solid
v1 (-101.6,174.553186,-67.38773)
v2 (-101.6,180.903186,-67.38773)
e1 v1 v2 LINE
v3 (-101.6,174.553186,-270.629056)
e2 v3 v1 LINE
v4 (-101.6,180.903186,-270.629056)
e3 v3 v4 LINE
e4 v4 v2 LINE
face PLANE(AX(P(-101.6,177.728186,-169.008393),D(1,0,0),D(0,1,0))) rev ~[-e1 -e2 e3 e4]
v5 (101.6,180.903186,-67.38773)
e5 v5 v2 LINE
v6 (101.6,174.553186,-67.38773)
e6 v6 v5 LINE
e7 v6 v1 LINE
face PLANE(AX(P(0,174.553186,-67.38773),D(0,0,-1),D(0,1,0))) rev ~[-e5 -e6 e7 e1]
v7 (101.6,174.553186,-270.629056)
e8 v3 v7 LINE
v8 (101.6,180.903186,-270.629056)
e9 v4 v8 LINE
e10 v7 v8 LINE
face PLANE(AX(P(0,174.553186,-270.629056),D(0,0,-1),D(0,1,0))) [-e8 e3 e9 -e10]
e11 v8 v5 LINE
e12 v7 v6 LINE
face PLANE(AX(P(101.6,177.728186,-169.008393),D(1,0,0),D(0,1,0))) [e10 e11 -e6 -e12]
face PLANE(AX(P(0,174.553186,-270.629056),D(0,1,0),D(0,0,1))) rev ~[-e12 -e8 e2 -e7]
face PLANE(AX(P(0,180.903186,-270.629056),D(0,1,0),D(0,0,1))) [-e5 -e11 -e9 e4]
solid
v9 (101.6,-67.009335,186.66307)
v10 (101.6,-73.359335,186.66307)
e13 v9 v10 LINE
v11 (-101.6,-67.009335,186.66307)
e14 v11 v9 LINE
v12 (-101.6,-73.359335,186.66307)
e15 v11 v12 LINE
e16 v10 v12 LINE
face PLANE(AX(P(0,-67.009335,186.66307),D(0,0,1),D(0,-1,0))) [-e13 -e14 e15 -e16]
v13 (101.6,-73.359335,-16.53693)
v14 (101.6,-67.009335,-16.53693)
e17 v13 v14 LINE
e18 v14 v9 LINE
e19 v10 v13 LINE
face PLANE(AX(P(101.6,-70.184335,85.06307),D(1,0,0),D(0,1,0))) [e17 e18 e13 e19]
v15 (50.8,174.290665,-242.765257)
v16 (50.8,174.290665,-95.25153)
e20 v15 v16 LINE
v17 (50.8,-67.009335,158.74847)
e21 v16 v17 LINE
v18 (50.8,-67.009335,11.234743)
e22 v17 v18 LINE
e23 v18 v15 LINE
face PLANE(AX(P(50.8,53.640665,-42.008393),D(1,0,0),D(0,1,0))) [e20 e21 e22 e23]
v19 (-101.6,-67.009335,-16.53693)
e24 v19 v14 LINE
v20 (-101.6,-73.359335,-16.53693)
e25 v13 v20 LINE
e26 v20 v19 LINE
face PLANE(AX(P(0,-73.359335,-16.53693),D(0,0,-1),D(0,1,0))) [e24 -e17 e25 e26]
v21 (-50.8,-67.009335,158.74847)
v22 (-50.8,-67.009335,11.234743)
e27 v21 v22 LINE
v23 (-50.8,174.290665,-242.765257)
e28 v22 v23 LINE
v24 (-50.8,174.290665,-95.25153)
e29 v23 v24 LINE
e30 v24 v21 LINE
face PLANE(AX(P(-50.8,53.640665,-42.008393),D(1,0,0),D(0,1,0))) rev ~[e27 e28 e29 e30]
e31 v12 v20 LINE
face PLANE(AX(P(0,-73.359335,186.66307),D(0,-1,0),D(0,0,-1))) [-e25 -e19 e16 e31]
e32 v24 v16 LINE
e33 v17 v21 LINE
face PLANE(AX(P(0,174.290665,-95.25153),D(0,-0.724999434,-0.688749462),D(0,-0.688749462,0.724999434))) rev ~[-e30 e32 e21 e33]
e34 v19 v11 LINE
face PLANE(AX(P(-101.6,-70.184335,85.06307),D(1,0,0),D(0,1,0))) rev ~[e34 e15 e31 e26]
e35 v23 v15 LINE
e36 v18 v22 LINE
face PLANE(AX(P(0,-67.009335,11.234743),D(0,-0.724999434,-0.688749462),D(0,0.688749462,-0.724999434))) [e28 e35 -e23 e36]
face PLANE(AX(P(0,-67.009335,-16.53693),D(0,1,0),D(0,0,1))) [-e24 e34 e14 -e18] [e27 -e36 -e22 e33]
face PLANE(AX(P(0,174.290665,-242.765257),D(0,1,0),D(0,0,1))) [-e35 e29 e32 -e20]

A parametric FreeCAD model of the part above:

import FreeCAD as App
import Part
import Sketcher

V = App.Vector
Q = App.Units.Quantity

doc = App.newDocument("Part")
body = doc.addObject("PartDesign::Body", "Body")

# Sketch on YZ plane
sketch1 = doc.addObject("Sketcher::SketchObject", "Sketch")
body.addObject(sketch1)
sketch1.AttachmentSupport = (doc.YZ_Plane, [""])
sketch1.MapMode = "FlatFace"
sketch1.addGeometry(Part.LineSegment(V(-73, -17, 0), V(-67, -17, 0)), False)
sketch1.addGeometry(Part.LineSegment(V(-67, -17, 0), V(-67, 187, 0)), False)
sketch1.addGeometry(Part.LineSegment(V(-67, 187, 0), V(-73, 187, 0)), False)
sketch1.addGeometry(Part.LineSegment(V(-73, 187, 0), V(-73, -17, 0)), False)
sketch1.addConstraint(Sketcher.Constraint("Coincident", 0, 2, 1, 1))
sketch1.addConstraint(Sketcher.Constraint("Coincident", 1, 2, 2, 1))
sketch1.addConstraint(Sketcher.Constraint("Coincident", 2, 2, 3, 1))
sketch1.addConstraint(Sketcher.Constraint("Coincident", 3, 2, 0, 1))
sketch1.addConstraint(Sketcher.Constraint("Horizontal", 0))
sketch1.addConstraint(Sketcher.Constraint("Vertical", 1))
sketch1.addConstraint(Sketcher.Constraint("Horizontal", 2))
sketch1.addConstraint(Sketcher.Constraint("Vertical", 3))
sketch1.addConstraint(Sketcher.Constraint("DistanceY", 1, 1, 1, 2, Q("8 in")))
sketch1.addConstraint(Sketcher.Constraint("DistanceX", 0, 1, 0, 2, Q("0.25 in")))
sketch1.addConstraint(Sketcher.Constraint("DistanceY", 0, 2, -1, 1, Q("16.53693 mm")))
sketch1.addConstraint(Sketcher.Constraint("DistanceX", 0, 2, -1, 1, Q("67.009335 mm")))
pad1 = doc.addObject("PartDesign::Pad", "Pad")
body.addObject(pad1)
pad1.Profile = sketch1
pad1.Type = "TwoLengths"
pad1.Length = Q("4 in")
pad1.Length2 = Q("4 in")

# Sketch on YZ plane
sketch2 = doc.addObject("Sketcher::SketchObject", "Sketch001")
body.addObject(sketch2)
sketch2.AttachmentSupport = (doc.YZ_Plane, [""])
sketch2.MapMode = "FlatFace"
sketch2.addGeometry(Part.LineSegment(V(-67, 159, 0), V(-67, 11, 0)), False)
sketch2.addGeometry(Part.LineSegment(V(-67, 11, 0), V(174, -243, 0)), False)
sketch2.addGeometry(Part.LineSegment(V(174, -243, 0), V(174, -95, 0)), False)
sketch2.addGeometry(Part.LineSegment(V(174, -95, 0), V(-67, 159, 0)), False)
sketch2.addConstraint(Sketcher.Constraint("Coincident", 0, 2, 1, 1))
sketch2.addConstraint(Sketcher.Constraint("Coincident", 1, 2, 2, 1))
sketch2.addConstraint(Sketcher.Constraint("Coincident", 2, 2, 3, 1))
sketch2.addConstraint(Sketcher.Constraint("Coincident", 3, 2, 0, 1))
sketch2.addConstraint(Sketcher.Constraint("Vertical", 0))
sketch2.addConstraint(Sketcher.Constraint("Vertical", 2))
sketch2.addConstraint(Sketcher.Constraint("Parallel", 1, 3))
sketch2.addConstraint(Sketcher.Constraint("DistanceY", 1, 2, 0, 2, Q("10 in")))
sketch2.addConstraint(Sketcher.Constraint("DistanceX", 0, 2, 1, 2, Q("9.5 in")))
sketch2.addConstraint(Sketcher.Constraint("DistanceY", 0, 2, 0, 1, Q("147.513727 mm")))
sketch2.addConstraint(Sketcher.Constraint("DistanceY", 2, 2, -1, 1, Q("95.25153 mm")))
sketch2.addConstraint(Sketcher.Constraint("DistanceX", 0, 2, -1, 1, Q("67.009335 mm")))
pad2 = doc.addObject("PartDesign::Pad", "Pad001")
body.addObject(pad2)
pad2.Profile = sketch2
pad2.Type = "TwoLengths"
pad2.Length = Q("2 in")
pad2.Length2 = Q("2 in")
body2 = doc.addObject("PartDesign::Body", "Body001")

# Sketch on YZ plane
sketch3 = doc.addObject("Sketcher::SketchObject", "Sketch002")
body2.addObject(sketch3)
sketch3.AttachmentSupport = (doc.getObject("YZ_Plane001"), [""])
sketch3.MapMode = "FlatFace"
sketch3.addGeometry(Part.LineSegment(V(175, -67, 0), V(175, -271, 0)), False)
sketch3.addGeometry(Part.LineSegment(V(175, -271, 0), V(181, -271, 0)), False)
sketch3.addGeometry(Part.LineSegment(V(181, -271, 0), V(181, -67, 0)), False)
sketch3.addGeometry(Part.LineSegment(V(181, -67, 0), V(175, -67, 0)), False)
sketch3.addConstraint(Sketcher.Constraint("Coincident", 0, 2, 1, 1))
sketch3.addConstraint(Sketcher.Constraint("Coincident", 1, 2, 2, 1))
sketch3.addConstraint(Sketcher.Constraint("Coincident", 2, 2, 3, 1))
sketch3.addConstraint(Sketcher.Constraint("Coincident", 3, 2, 0, 1))
sketch3.addConstraint(Sketcher.Constraint("Vertical", 0))
sketch3.addConstraint(Sketcher.Constraint("Horizontal", 1))
sketch3.addConstraint(Sketcher.Constraint("Vertical", 2))
sketch3.addConstraint(Sketcher.Constraint("Horizontal", 3))
sketch3.addConstraint(Sketcher.Constraint("DistanceX", 1, 1, 1, 2, Q("0.25 in")))
sketch3.addConstraint(Sketcher.Constraint("DistanceY", 0, 2, 0, 1, Q("203.241327 mm")))
sketch3.addConstraint(Sketcher.Constraint("DistanceY", 2, 2, -1, 1, Q("67.38773 mm")))
sketch3.addConstraint(Sketcher.Constraint("DistanceX", -1, 1, 0, 2, Q("174.553186 mm")))
pad3 = doc.addObject("PartDesign::Pad", "Pad002")
body2.addObject(pad3)
pad3.Profile = sketch3
pad3.Type = "TwoLengths"
pad3.Length = Q("4 in")
pad3.Length2 = Q("4 in")

doc.recompute()
